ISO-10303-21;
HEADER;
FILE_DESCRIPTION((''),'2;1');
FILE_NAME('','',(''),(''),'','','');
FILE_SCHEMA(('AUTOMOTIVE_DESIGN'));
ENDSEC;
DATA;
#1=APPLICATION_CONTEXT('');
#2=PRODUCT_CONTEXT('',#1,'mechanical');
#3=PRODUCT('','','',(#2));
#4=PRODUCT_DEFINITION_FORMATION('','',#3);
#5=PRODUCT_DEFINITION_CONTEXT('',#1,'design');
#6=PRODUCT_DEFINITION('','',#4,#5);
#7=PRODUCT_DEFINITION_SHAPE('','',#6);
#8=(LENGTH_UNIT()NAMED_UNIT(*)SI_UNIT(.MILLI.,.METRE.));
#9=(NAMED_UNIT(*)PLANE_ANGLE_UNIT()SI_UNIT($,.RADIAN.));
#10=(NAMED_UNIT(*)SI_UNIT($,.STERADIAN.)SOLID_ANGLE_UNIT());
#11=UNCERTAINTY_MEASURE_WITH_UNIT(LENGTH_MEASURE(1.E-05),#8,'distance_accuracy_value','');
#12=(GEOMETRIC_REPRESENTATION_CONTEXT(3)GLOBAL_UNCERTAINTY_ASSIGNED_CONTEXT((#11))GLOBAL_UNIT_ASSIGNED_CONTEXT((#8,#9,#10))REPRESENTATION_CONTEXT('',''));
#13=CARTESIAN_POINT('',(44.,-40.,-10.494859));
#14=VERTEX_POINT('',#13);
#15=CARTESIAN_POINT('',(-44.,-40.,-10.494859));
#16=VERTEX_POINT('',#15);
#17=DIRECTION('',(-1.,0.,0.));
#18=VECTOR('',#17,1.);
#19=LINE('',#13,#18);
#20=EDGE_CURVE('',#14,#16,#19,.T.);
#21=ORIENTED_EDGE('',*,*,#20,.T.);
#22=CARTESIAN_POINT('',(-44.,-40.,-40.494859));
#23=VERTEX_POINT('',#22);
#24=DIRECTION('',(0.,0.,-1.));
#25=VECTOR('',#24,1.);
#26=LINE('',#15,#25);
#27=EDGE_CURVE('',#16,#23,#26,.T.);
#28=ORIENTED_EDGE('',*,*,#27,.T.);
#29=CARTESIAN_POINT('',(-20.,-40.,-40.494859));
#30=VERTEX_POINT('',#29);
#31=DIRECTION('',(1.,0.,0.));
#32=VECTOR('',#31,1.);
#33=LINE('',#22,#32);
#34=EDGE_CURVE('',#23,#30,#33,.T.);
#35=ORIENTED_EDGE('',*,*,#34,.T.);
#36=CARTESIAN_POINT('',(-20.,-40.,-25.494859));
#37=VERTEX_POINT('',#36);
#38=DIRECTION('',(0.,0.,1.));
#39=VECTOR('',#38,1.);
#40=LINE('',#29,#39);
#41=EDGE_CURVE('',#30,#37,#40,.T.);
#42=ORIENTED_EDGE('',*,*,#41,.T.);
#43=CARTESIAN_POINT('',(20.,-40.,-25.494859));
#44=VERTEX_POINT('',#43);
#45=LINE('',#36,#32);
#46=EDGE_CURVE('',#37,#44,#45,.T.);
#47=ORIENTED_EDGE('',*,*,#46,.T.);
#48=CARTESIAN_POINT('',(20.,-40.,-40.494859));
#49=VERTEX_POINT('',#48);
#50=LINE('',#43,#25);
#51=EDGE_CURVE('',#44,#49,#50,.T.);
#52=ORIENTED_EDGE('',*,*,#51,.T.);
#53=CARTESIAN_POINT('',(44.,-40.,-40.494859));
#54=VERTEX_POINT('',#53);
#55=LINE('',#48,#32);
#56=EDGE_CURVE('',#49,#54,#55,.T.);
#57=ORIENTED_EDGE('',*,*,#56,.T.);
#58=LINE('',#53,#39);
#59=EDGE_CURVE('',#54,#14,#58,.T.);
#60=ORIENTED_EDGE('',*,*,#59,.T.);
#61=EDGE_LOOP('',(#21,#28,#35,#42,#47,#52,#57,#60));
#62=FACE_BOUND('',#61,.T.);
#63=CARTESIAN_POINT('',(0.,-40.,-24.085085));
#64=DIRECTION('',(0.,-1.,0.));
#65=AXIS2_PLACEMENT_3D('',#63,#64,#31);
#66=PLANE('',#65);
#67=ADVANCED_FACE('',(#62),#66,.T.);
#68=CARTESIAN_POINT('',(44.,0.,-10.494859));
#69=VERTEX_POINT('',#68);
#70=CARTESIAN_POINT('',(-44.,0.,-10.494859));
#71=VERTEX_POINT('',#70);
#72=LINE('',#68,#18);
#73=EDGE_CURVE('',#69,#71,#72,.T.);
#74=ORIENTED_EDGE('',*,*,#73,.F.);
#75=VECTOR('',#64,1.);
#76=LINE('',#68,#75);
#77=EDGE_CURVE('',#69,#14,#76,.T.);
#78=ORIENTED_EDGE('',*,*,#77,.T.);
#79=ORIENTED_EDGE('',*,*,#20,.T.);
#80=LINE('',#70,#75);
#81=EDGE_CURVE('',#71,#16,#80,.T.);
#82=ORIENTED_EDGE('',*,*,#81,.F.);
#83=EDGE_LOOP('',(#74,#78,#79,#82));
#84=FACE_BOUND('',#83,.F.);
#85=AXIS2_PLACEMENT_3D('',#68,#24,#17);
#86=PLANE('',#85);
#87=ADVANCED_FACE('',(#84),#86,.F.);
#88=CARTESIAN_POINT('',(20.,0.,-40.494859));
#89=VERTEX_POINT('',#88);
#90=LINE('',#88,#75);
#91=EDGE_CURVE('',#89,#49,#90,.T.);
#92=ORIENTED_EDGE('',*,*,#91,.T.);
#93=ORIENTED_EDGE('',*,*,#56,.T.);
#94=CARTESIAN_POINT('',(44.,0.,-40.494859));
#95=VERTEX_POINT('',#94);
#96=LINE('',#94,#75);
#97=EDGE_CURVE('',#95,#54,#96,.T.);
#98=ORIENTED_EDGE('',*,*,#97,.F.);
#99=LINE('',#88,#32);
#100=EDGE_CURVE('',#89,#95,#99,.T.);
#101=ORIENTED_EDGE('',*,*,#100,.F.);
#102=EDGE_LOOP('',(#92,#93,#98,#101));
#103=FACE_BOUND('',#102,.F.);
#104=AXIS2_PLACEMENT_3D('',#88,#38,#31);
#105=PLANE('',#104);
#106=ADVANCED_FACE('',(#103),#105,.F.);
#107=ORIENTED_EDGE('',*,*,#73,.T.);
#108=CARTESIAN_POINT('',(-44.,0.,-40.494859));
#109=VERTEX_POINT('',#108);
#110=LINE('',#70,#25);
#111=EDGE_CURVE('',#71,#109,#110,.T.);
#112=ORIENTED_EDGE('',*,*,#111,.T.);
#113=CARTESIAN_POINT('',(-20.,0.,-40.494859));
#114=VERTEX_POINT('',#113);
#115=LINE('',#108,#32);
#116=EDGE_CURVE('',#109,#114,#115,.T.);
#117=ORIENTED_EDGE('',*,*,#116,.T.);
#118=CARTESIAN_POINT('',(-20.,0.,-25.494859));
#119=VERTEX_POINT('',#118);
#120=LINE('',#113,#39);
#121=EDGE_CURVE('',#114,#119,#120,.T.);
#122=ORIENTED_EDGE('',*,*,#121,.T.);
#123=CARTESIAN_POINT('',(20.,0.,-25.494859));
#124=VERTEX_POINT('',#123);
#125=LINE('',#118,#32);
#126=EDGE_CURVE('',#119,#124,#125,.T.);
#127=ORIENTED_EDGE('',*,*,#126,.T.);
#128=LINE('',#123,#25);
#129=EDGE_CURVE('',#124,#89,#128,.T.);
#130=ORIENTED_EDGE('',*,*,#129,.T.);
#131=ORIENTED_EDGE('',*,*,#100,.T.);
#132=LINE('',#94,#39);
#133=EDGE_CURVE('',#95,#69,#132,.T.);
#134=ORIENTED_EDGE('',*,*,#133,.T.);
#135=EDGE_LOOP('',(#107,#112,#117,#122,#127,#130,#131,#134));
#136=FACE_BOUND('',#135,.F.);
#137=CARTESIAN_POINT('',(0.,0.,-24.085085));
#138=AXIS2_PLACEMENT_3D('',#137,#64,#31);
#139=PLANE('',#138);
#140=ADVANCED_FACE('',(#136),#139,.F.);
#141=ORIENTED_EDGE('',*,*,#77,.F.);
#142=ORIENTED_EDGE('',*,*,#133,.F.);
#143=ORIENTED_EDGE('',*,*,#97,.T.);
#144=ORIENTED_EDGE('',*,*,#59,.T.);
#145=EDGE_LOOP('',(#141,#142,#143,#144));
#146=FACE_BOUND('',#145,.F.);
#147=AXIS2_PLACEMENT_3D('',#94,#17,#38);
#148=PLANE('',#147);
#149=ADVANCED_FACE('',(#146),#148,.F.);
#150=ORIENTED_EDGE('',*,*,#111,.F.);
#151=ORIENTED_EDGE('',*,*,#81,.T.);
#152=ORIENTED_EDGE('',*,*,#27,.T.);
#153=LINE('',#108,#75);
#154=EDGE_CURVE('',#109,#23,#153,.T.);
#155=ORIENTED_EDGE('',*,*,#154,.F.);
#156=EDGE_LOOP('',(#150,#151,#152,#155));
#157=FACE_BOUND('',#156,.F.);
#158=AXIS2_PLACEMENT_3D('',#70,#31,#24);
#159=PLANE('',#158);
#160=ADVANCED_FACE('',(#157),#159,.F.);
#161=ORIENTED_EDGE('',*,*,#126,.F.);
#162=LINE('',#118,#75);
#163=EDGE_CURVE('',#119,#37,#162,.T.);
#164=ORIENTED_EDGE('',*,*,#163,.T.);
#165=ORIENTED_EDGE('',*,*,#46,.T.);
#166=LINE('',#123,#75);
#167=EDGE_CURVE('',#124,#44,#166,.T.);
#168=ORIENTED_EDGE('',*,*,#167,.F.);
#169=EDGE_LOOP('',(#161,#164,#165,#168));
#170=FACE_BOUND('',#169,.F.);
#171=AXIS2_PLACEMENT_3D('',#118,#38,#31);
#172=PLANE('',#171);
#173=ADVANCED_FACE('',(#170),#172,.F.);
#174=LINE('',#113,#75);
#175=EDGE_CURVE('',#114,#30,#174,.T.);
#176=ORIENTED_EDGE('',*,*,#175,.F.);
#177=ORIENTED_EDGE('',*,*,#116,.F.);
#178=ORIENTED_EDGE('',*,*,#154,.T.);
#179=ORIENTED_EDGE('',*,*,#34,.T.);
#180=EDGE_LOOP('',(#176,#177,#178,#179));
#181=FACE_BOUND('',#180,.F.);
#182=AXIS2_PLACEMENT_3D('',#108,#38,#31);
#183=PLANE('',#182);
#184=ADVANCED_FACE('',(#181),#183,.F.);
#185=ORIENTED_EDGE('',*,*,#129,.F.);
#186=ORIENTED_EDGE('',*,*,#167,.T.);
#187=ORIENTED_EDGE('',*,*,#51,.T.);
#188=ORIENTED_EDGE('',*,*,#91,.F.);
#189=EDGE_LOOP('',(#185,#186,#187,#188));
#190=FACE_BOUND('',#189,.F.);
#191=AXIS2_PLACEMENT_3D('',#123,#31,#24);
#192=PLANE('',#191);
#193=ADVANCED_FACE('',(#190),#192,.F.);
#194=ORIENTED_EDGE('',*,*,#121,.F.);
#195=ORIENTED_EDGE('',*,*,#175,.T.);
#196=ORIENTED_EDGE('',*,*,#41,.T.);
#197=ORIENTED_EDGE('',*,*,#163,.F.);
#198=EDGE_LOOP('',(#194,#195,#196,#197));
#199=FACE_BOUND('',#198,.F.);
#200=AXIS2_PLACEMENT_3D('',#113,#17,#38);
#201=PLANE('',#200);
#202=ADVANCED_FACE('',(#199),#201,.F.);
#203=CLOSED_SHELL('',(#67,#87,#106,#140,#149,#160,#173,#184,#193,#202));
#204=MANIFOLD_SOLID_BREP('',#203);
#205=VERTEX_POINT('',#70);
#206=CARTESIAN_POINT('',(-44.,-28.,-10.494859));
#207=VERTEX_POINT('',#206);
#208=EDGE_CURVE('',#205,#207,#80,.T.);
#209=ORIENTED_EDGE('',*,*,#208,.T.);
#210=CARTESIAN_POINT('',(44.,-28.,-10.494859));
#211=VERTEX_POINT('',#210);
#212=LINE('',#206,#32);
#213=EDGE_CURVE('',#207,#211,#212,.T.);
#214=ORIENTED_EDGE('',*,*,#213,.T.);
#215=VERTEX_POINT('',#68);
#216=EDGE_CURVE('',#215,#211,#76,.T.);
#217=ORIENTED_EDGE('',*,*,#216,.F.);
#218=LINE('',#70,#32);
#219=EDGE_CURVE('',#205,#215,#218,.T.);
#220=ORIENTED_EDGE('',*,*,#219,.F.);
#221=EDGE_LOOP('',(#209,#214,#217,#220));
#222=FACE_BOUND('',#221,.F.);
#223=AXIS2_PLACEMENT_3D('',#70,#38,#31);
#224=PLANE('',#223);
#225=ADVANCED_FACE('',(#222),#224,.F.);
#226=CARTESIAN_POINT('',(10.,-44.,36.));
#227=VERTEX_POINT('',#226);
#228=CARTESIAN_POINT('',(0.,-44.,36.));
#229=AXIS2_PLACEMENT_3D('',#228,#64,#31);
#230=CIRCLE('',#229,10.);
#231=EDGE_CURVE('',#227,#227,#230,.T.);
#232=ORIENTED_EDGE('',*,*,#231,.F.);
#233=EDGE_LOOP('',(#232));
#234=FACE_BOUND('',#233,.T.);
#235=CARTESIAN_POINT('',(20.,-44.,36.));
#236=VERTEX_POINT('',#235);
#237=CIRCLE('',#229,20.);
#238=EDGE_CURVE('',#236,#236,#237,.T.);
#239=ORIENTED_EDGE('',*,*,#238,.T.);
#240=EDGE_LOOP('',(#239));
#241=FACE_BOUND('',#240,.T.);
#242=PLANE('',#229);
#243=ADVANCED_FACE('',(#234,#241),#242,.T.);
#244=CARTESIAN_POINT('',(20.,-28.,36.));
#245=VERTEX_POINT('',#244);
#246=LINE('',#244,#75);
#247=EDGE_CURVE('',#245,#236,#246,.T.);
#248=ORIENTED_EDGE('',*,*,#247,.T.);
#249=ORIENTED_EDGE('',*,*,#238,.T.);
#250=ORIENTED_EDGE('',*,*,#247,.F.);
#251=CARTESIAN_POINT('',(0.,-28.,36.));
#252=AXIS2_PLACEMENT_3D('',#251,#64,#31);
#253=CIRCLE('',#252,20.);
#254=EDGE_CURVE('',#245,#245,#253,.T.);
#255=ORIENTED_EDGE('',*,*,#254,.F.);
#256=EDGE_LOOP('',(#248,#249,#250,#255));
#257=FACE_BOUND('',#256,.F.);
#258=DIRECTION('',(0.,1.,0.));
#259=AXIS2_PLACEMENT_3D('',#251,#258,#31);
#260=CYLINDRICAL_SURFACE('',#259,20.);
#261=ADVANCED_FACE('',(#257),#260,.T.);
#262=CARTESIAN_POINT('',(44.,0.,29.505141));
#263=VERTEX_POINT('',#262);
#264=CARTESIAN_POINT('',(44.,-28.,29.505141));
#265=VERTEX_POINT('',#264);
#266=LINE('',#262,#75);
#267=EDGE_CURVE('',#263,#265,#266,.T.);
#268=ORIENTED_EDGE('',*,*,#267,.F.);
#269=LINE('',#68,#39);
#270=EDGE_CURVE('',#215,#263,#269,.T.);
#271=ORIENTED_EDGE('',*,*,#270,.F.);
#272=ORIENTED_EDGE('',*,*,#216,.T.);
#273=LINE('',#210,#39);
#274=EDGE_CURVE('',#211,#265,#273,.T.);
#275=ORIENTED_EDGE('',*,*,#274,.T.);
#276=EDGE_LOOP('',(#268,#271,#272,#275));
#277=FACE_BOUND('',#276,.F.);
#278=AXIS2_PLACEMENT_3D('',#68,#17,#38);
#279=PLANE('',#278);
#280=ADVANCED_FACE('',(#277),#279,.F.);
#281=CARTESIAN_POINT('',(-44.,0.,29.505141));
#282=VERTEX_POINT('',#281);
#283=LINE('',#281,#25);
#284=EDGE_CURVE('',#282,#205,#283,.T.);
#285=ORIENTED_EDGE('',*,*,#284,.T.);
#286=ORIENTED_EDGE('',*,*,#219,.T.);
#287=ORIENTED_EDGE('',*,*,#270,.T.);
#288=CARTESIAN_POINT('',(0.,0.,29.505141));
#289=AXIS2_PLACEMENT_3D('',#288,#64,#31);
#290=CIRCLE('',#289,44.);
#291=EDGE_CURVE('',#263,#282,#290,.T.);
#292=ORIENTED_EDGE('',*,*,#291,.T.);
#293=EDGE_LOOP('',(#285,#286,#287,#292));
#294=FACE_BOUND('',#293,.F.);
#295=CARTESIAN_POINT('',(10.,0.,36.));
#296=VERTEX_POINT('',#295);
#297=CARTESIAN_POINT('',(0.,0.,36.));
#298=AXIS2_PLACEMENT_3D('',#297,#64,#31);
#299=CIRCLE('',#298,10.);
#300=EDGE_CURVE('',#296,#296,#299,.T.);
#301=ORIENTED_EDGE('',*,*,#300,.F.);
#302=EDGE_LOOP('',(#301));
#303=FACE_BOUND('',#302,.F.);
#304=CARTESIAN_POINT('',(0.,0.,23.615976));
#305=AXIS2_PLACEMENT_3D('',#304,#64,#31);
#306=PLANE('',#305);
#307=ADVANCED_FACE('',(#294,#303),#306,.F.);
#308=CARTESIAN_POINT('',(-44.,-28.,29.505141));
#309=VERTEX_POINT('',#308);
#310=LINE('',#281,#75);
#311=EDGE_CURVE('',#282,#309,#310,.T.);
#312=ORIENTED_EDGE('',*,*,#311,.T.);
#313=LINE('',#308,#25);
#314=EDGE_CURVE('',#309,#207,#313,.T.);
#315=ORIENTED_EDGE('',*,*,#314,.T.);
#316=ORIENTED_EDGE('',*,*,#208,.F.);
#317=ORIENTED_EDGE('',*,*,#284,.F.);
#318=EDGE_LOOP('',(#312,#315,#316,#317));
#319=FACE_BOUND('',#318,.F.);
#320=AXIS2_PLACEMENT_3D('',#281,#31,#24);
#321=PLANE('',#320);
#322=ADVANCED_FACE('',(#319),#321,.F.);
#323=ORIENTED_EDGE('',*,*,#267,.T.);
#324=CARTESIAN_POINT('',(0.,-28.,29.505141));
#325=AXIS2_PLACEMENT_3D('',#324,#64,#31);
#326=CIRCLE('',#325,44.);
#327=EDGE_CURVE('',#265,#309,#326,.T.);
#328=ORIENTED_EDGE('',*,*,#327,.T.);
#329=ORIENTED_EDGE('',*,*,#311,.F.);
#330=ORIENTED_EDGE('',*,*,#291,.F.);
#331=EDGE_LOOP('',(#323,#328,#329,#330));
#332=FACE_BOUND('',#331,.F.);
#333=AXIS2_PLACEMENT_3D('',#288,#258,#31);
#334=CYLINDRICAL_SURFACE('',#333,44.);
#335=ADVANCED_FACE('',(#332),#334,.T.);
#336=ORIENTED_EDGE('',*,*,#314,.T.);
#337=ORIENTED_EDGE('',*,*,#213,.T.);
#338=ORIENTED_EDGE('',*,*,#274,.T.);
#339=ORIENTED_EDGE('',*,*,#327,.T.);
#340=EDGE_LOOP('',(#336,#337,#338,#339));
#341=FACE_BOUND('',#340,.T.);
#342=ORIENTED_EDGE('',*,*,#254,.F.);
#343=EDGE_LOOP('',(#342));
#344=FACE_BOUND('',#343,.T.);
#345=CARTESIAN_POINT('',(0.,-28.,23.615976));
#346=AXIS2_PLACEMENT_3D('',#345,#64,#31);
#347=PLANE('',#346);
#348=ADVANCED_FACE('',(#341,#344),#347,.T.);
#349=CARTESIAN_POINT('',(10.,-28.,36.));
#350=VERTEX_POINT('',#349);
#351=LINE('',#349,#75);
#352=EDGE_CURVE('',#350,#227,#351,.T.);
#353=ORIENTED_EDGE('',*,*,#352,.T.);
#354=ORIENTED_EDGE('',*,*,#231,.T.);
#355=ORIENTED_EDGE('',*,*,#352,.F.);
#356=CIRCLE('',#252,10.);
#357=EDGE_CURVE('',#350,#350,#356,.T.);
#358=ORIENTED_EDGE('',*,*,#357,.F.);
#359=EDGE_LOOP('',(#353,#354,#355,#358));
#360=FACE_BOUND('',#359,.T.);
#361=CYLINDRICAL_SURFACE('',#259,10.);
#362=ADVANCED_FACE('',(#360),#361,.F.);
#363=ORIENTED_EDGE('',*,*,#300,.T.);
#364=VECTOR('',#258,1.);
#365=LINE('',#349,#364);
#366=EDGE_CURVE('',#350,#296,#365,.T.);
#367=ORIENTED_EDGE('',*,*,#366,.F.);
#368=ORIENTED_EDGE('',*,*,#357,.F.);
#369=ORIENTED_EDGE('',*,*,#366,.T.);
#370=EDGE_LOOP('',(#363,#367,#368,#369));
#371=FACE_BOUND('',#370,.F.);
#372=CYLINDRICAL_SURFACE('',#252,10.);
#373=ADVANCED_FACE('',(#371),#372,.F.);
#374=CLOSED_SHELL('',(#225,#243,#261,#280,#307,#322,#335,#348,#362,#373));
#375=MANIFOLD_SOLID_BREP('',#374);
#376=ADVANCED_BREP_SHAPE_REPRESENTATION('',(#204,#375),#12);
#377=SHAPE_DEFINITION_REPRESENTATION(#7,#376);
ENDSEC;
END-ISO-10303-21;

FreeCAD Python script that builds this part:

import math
import FreeCAD as App
import Part
import Sketcher

doc = App.newDocument("Part")
body = doc.addObject("PartDesign::Body", "Body")

sketch1 = doc.addObject("Sketcher::SketchObject", "Sketch")
body.addObject(sketch1)
sketch1.AttachmentSupport = (doc.XZ_Plane, [""])
sketch1.MapMode = "FlatFace"
sketch1.addGeometry(Part.LineSegment(App.Vector(44, -10, 0), App.Vector(-44, -10, 0)), False)
sketch1.addGeometry(Part.LineSegment(App.Vector(-44, -10, 0), App.Vector(-44, -40, 0)), False)
sketch1.addGeometry(Part.LineSegment(App.Vector(-44, -40, 0), App.Vector(-20, -40, 0)), False)
sketch1.addGeometry(Part.LineSegment(App.Vector(-20, -40, 0), App.Vector(-20, -25, 0)), False)
sketch1.addGeometry(Part.LineSegment(App.Vector(-20, -25, 0), App.Vector(20, -25, 0)), False)
sketch1.addGeometry(Part.LineSegment(App.Vector(20, -25, 0), App.Vector(20, -40, 0)), False)
sketch1.addGeometry(Part.LineSegment(App.Vector(20, -40, 0), App.Vector(44, -40, 0)), False)
sketch1.addGeometry(Part.LineSegment(App.Vector(44, -40, 0), App.Vector(44, -10, 0)), False)
sketch1.addConstraint(Sketcher.Constraint("Coincident", 0, 2, 1, 1))
sketch1.addConstraint(Sketcher.Constraint("Coincident", 1, 2, 2, 1))
sketch1.addConstraint(Sketcher.Constraint("Coincident", 2, 2, 3, 1))
sketch1.addConstraint(Sketcher.Constraint("Coincident", 3, 2, 4, 1))
sketch1.addConstraint(Sketcher.Constraint("Coincident", 4, 2, 5, 1))
sketch1.addConstraint(Sketcher.Constraint("Coincident", 5, 2, 6, 1))
sketch1.addConstraint(Sketcher.Constraint("Coincident", 6, 2, 7, 1))
sketch1.addConstraint(Sketcher.Constraint("Coincident", 7, 2, 0, 1))
sketch1.addConstraint(Sketcher.Constraint("Horizontal", 0))
sketch1.addConstraint(Sketcher.Constraint("Vertical", 1))
sketch1.addConstraint(Sketcher.Constraint("Horizontal", 2))
sketch1.addConstraint(Sketcher.Constraint("Vertical", 3))
sketch1.addConstraint(Sketcher.Constraint("Horizontal", 4))
sketch1.addConstraint(Sketcher.Constraint("Vertical", 5))
sketch1.addConstraint(Sketcher.Constraint("Horizontal", 6))
sketch1.addConstraint(Sketcher.Constraint("Vertical", 7))
sketch1.addConstraint(Sketcher.Constraint("Symmetric", 2, 2, 5, 2, -2))
sketch1.addConstraint(Sketcher.Constraint("Equal", 2, 6))
sketch1.addConstraint(Sketcher.Constraint("DistanceX", 0, 2, 0, 1, 88.0))
sketch1.addConstraint(Sketcher.Constraint("DistanceX", 2, 1, 2, 2, 24.0))
sketch1.addConstraint(Sketcher.Constraint("DistanceY", 1, 2, 1, 1, 30.0))
sketch1.addConstraint(Sketcher.Constraint("DistanceY", 3, 1, 3, 2, 15.0))
sketch1.addConstraint(Sketcher.Constraint("DistanceY", 0, 2, -1, 1, 10.494859))
pad1 = doc.addObject("PartDesign::Pad", "Pad")
body.addObject(pad1)
pad1.Profile = sketch1
pad1.Length = 40
body2 = doc.addObject("PartDesign::Body", "Body001")

sketch2 = doc.addObject("Sketcher::SketchObject", "Sketch001")
body2.addObject(sketch2)
sketch2.AttachmentSupport = (doc.getObject("XZ_Plane001"), [""])
sketch2.MapMode = "FlatFace"
sketch2.addGeometry(Part.LineSegment(App.Vector(-44, -10, 0), App.Vector(44, -10, 0)), False)
sketch2.addGeometry(Part.LineSegment(App.Vector(44, -10, 0), App.Vector(44, 30, 0)), False)
sketch2.addGeometry(Part.ArcOfCircle(Part.Circle(App.Vector(0, 30, 0), App.Vector(0, 0, 1), 44), math.radians(0), math.radians(180)), False)
sketch2.addGeometry(Part.LineSegment(App.Vector(-44, 30, 0), App.Vector(-44, -10, 0)), False)
sketch2.addConstraint(Sketcher.Constraint("Coincident", 0, 2, 1, 1))
sketch2.addConstraint(Sketcher.Constraint("Tangent", 1, 2, 2, 1))
sketch2.addConstraint(Sketcher.Constraint("Tangent", 2, 2, 3, 1))
sketch2.addConstraint(Sketcher.Constraint("Coincident", 3, 2, 0, 1))
sketch2.addConstraint(Sketcher.Constraint("Horizontal", 0))
sketch2.addConstraint(Sketcher.Constraint("Vertical", 1))
sketch2.addConstraint(Sketcher.Constraint("Vertical", 3))
sketch2.addConstraint(Sketcher.Constraint("PointOnObject", 2, 3, -2))
sketch2.addConstraint(Sketcher.Constraint("Radius", 2, 44.0))
sketch2.addConstraint(Sketcher.Constraint("DistanceY", 1, 1, 1, 2, 40.0))
sketch2.addConstraint(Sketcher.Constraint("DistanceY", -1, 1, 2, 3, 29.505141))
pad2 = doc.addObject("PartDesign::Pad", "Pad001")
body2.addObject(pad2)
pad2.Profile = sketch2
pad2.Length = 28

sketch3 = doc.addObject("Sketcher::SketchObject", "Sketch002")
body2.addObject(sketch3)
sketch3.AttachmentSupport = (doc.getObject("XZ_Plane001"), [""])
sketch3.MapMode = "FlatFace"
sketch3.AttachmentOffset = App.Placement(App.Vector(0, 0, 28), App.Rotation())
sketch3.addGeometry(Part.Circle(App.Vector(0, 36, 0), App.Vector(0, 0, 1), 20), False)
sketch3.addGeometry(Part.Circle(App.Vector(0, 36, 0), App.Vector(0, 0, 1), 10), False)
sketch3.addConstraint(Sketcher.Constraint("Coincident", 1, 3, 0, 3))
sketch3.addConstraint(Sketcher.Constraint("PointOnObject", 0, 3, -2))
sketch3.addConstraint(Sketcher.Constraint("Diameter", 0, 40.0))
sketch3.addConstraint(Sketcher.Constraint("Diameter", 1, 20.0))
sketch3.addConstraint(Sketcher.Constraint("DistanceY", -1, 1, 0, 3, 36.0))
pad3 = doc.addObject("PartDesign::Pad", "Pad002")
body2.addObject(pad3)
pad3.Profile = sketch3
pad3.Length = 16

sketch4 = doc.addObject("Sketcher::SketchObject", "Sketch003")
body2.addObject(sketch4)
sketch4.AttachmentSupport = (doc.getObject("XZ_Plane001"), [""])
sketch4.MapMode = "FlatFace"
sketch4.AttachmentOffset = App.Placement(App.Vector(0, 0, 28), App.Rotation())
sketch4.addGeometry(Part.Circle(App.Vector(0, 36, 0), App.Vector(0, 0, 1), 10), False)
sketch4.addConstraint(Sketcher.Constraint("PointOnObject", 0, 3, -2))
sketch4.addConstraint(Sketcher.Constraint("Diameter", 0, 20.0))
sketch4.addConstraint(Sketcher.Constraint("DistanceY", -1, 1, 0, 3, 36.0))
pocket1 = doc.addObject("PartDesign::Pocket", "Pocket")
body2.addObject(pocket1)
pocket1.Profile = sketch4
pocket1.Length = 100

doc.recompute()
